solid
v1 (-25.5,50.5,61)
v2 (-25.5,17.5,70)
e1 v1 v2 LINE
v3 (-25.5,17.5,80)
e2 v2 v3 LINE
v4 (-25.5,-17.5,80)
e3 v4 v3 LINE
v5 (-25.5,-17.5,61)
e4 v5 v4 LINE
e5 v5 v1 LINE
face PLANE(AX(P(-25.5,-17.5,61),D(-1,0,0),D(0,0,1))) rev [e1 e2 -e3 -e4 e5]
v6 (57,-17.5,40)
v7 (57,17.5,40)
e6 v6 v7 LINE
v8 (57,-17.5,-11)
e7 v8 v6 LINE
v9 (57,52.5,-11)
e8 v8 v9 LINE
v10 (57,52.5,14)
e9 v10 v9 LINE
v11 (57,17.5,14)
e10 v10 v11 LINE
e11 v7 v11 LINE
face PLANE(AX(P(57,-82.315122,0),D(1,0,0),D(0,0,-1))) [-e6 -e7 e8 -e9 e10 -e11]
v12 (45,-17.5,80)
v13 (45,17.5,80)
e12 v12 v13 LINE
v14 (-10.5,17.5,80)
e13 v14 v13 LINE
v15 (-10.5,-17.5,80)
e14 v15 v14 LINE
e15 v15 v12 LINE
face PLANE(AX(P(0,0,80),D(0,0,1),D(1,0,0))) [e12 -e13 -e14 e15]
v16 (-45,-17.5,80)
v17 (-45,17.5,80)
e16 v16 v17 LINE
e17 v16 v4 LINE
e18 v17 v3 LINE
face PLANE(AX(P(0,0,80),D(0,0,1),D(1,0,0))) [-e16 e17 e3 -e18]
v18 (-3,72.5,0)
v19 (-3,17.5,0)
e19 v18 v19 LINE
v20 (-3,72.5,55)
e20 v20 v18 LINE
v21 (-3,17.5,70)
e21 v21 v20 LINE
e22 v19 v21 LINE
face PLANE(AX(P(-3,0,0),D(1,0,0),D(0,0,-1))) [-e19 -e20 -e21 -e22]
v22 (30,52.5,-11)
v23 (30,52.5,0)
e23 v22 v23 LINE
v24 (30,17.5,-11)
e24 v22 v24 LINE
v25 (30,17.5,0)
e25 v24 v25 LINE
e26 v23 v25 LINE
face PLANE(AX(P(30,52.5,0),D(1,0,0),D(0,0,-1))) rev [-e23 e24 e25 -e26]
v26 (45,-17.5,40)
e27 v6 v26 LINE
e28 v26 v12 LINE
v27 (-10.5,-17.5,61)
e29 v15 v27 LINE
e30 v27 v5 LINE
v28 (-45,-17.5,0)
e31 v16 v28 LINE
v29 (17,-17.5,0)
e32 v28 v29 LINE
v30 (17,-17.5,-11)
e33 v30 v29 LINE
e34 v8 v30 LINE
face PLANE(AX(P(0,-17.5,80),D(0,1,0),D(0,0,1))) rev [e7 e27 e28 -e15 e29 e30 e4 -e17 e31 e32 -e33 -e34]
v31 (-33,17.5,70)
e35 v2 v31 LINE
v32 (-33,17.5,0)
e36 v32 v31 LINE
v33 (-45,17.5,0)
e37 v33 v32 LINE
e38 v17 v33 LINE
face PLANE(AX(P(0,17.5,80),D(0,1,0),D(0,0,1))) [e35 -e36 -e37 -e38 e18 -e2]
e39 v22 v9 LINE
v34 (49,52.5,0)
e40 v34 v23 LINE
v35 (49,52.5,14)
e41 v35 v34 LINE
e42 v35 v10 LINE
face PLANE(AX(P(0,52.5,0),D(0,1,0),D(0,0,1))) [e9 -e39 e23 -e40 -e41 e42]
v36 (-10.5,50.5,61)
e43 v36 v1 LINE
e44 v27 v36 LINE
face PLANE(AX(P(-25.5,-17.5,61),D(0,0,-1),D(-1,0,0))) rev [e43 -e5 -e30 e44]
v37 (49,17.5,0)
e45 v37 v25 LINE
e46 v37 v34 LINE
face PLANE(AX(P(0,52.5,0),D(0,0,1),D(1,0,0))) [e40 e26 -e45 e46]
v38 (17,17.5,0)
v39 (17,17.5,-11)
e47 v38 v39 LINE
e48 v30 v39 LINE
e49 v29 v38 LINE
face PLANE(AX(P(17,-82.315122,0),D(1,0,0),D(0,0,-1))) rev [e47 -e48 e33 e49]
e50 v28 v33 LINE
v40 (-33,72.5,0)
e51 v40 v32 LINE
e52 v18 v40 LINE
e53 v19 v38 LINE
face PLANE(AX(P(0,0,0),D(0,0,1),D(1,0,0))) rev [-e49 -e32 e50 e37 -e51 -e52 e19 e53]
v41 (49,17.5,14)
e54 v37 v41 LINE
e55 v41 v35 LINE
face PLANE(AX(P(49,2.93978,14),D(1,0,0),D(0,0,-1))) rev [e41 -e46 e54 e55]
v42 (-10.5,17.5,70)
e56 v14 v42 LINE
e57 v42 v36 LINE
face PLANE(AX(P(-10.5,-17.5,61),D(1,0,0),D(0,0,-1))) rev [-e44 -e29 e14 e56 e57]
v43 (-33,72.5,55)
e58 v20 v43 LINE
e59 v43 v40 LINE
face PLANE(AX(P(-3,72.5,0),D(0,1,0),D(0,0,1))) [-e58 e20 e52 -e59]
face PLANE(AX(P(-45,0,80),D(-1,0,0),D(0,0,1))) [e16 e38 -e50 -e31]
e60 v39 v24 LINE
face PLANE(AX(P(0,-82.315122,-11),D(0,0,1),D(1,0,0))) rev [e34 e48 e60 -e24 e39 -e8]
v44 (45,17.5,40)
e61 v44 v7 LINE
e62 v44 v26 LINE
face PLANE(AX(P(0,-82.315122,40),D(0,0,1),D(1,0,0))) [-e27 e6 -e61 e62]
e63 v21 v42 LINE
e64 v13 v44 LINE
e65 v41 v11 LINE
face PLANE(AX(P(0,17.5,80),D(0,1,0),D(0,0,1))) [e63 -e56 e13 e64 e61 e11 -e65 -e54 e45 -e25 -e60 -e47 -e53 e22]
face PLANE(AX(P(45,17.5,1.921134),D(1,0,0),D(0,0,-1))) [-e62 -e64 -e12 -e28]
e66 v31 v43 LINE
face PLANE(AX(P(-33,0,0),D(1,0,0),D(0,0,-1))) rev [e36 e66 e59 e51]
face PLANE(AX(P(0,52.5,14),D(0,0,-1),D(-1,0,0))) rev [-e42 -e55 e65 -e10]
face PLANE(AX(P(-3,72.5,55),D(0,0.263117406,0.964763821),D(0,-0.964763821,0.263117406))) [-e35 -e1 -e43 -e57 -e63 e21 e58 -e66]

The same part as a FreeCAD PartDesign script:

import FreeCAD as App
import Part
import Sketcher

V = App.Vector
Q = App.Units.Quantity


def add_polygon(sketch, points):
    """Adds a closed chain of lines whose ends are joined by coincident constraints."""
    first, n = sketch.GeometryCount, len(points)
    for a, b in zip(points, points[1:] + points[:1]):
        sketch.addGeometry(Part.LineSegment(App.Vector(*a, 0), App.Vector(*b, 0)), False)
    for i in range(n):
        sketch.addConstraint(Sketcher.Constraint("Coincident", first + i, 2, first + (i + 1) % n, 1))

doc = App.newDocument("Part")
body = doc.addObject("PartDesign::Body", "Body")

# Sketch on XY plane
sketch1 = doc.addObject("Sketcher::SketchObject", "Sketch")
body.addObject(sketch1)
sketch1.AttachmentSupport = (doc.XY_Plane, [""])
sketch1.MapMode = "FlatFace"
add_polygon(sketch1, [(-45, -18), (30, -18), (45, 18), (-45, 18)])  # lines 0-3
sketch1.addConstraint(Sketcher.Constraint("Horizontal", 0))
sketch1.addConstraint(Sketcher.Constraint("Horizontal", 2))
sketch1.addConstraint(Sketcher.Constraint("Vertical", 3))
sketch1.addConstraint(Sketcher.Constraint("Symmetric", 1, 2, 3, 2, -1, 1))
sketch1.addConstraint(Sketcher.Constraint("DistanceX", 0, 1, 0, 2, Q("75 mm")))
sketch1.addConstraint(Sketcher.Constraint("DistanceX", 2, 2, 2, 1, Q("90 mm")))
sketch1.addConstraint(Sketcher.Constraint("DistanceY", 3, 2, 3, 1, Q("35 mm")))
pad1 = doc.addObject("PartDesign::Pad", "Pad")
body.addObject(pad1)
pad1.Profile = sketch1
pad1.Length = 80

# Sketch on YZ plane
sketch2 = doc.addObject("Sketcher::SketchObject", "Sketch001")
body.addObject(sketch2)
sketch2.AttachmentSupport = (doc.YZ_Plane, [""])
sketch2.MapMode = "FlatFace"
sketch2.AttachmentOffset = App.Placement(V(0, 0, -33), App.Rotation())
add_polygon(sketch2, [(72, 0), (18, 0), (18, 70), (72, 55)])  # lines 0-3
sketch2.addConstraint(Sketcher.Constraint("Horizontal", 0))
sketch2.addConstraint(Sketcher.Constraint("Vertical", 1))
sketch2.addConstraint(Sketcher.Constraint("Vertical", 3))
sketch2.addConstraint(Sketcher.Constraint("PointOnObject", 0, 2, -1))
sketch2.addConstraint(Sketcher.Constraint("Equal", 0, 3))
sketch2.addConstraint(Sketcher.Constraint("DistanceX", 0, 2, 0, 1, Q("55 mm")))
sketch2.addConstraint(Sketcher.Constraint("DistanceY", 1, 1, 1, 2, Q("70 mm")))
sketch2.addConstraint(Sketcher.Constraint("DistanceX", -1, 1, 0, 2, Q("17.5 mm")))
pad2 = doc.addObject("PartDesign::Pad", "Pad001")
body.addObject(pad2)
pad2.Profile = sketch2
pad2.Length = 30

# Sketch on XZ plane
sketch3 = doc.addObject("Sketcher::SketchObject", "Sketch002")
body.addObject(sketch3)
sketch3.AttachmentSupport = (doc.XZ_Plane, [""])
sketch3.MapMode = "FlatFace"
sketch3.AttachmentOffset = App.Placement(V(0, 0, -72.5), App.Rotation())
add_polygon(sketch3, [(-26, 61), (-26, 80), (-10, 80), (-10, 61)])  # lines 0-3
sketch3.addConstraint(Sketcher.Constraint("Vertical", 0))
sketch3.addConstraint(Sketcher.Constraint("Horizontal", 1))
sketch3.addConstraint(Sketcher.Constraint("Vertical", 2))
sketch3.addConstraint(Sketcher.Constraint("Horizontal", 3))
sketch3.addConstraint(Sketcher.Constraint("DistanceX", 1, 1, 1, 2, Q("15 mm")))
sketch3.addConstraint(Sketcher.Constraint("DistanceY", 0, 1, 0, 2, Q("19 mm")))
sketch3.addConstraint(Sketcher.Constraint("DistanceY", -1, 1, 0, 2, Q("80 mm")))
sketch3.addConstraint(Sketcher.Constraint("DistanceX", 0, 2, -1, 1, Q("25.5 mm")))
pocket1 = doc.addObject("PartDesign::Pocket", "Pocket")
body.addObject(pocket1)
pocket1.Profile = sketch3
pocket1.Type = "ThroughAll"
pocket1.Reversed = True

# Sketch on XZ plane
sketch4 = doc.addObject("Sketcher::SketchObject", "Sketch003")
body.addObject(sketch4)
sketch4.AttachmentSupport = (doc.XZ_Plane, [""])
sketch4.MapMode = "FlatFace"
sketch4.AttachmentOffset = App.Placement(V(0, 0, -17.5), App.Rotation())
add_polygon(sketch4, [(17, 40), (57, 40), (57, -11), (17, -11)])  # lines 0-3
sketch4.addConstraint(Sketcher.Constraint("Horizontal", 0))
sketch4.addConstraint(Sketcher.Constraint("Vertical", 1))
sketch4.addConstraint(Sketcher.Constraint("Horizontal", 2))
sketch4.addConstraint(Sketcher.Constraint("Vertical", 3))
sketch4.addConstraint(Sketcher.Constraint("DistanceX", 0, 1, 0, 2, Q("40 mm")))
sketch4.addConstraint(Sketcher.Constraint("DistanceY", 1, 2, 1, 1, Q("51 mm")))
sketch4.addConstraint(Sketcher.Constraint("DistanceX", -1, 1, 0, 2, Q("57 mm")))
sketch4.addConstraint(Sketcher.Constraint("DistanceY", -1, 1, 0, 2, Q("40 mm")))
pad3 = doc.addObject("PartDesign::Pad", "Pad002")
body.addObject(pad3)
pad3.Profile = sketch4
pad3.Length = 35

# Sketch on XZ plane
sketch5 = doc.addObject("Sketcher::SketchObject", "Sketch004")
body.addObject(sketch5)
sketch5.AttachmentSupport = (doc.XZ_Plane, [""])
sketch5.MapMode = "FlatFace"
sketch5.AttachmentOffset = App.Placement(V(0, 0, -17.5), App.Rotation())
add_polygon(sketch5, [(45, 0), (45, 14), (57, 14), (57, -11), (30, -11), (30, 0)])  # lines 0-5
sketch5.addConstraint(Sketcher.Constraint("Vertical", 0))
sketch5.addConstraint(Sketcher.Constraint("Horizontal", 1))
sketch5.addConstraint(Sketcher.Constraint("Vertical", 2))
sketch5.addConstraint(Sketcher.Constraint("Horizontal", 3))
sketch5.addConstraint(Sketcher.Constraint("Vertical", 4))
sketch5.addConstraint(Sketcher.Constraint("Horizontal", 5))
sketch5.addConstraint(Sketcher.Constraint("PointOnObject", 4, 2, -1))
sketch5.addConstraint(Sketcher.Constraint("DistanceX", 1, 1, 1, 2, Q("12 mm")))
sketch5.addConstraint(Sketcher.Constraint("DistanceX", 3, 2, 3, 1, Q("27 mm")))
sketch5.addConstraint(Sketcher.Constraint("DistanceY", 0, 1, 0, 2, Q("14 mm")))
sketch5.addConstraint(Sketcher.Constraint("DistanceY", 2, 2, 2, 1, Q("25 mm")))
sketch5.addConstraint(Sketcher.Constraint("DistanceX", -1, 1, 0, 2, Q("45 mm")))
pad4 = doc.addObject("PartDesign::Pad", "Pad003")
body.addObject(pad4)
pad4.Profile = sketch5
pad4.Length = 35
pad4.Reversed = True

# Sketch on XZ plane
sketch6 = doc.addObject("Sketcher::SketchObject", "Sketch005")
body.addObject(sketch6)
sketch6.AttachmentSupport = (doc.XZ_Plane, [""])
sketch6.MapMode = "FlatFace"
sketch6.AttachmentOffset = App.Placement(V(0, 0, -52.5), App.Rotation())
add_polygon(sketch6, [(45, 0), (45, 14), (49, 14), (49, 0)])  # lines 0-3
sketch6.addConstraint(Sketcher.Constraint("Vertical", 0))
sketch6.addConstraint(Sketcher.Constraint("Horizontal", 1))
sketch6.addConstraint(Sketcher.Constraint("Vertical", 2))
sketch6.addConstraint(Sketcher.Constraint("Horizontal", 3))
sketch6.addConstraint(Sketcher.Constraint("PointOnObject", 2, 2, -1))
sketch6.addConstraint(Sketcher.Constraint("DistanceX", 1, 1, 1, 2, Q("4 mm")))
sketch6.addConstraint(Sketcher.Constraint("DistanceY", 0, 1, 0, 2, Q("14 mm")))
sketch6.addConstraint(Sketcher.Constraint("DistanceX", -1, 1, 0, 2, Q("45 mm")))
pocket2 = doc.addObject("PartDesign::Pocket", "Pocket001")
body.addObject(pocket2)
pocket2.Profile = sketch6
pocket2.Length = 35
pocket2.Reversed = True

# Sketch on XY plane
sketch7 = doc.addObject("Sketcher::SketchObject", "Sketch006")
body.addObject(sketch7)
sketch7.AttachmentSupport = (doc.XY_Plane, [""])
sketch7.MapMode = "FlatFace"
sketch7.AttachmentOffset = App.Placement(V(0, 0, 80), App.Rotation())
add_polygon(sketch7, [(45, 18), (30, -18), (45, -18)])  # lines 0-2
sketch7.addConstraint(Sketcher.Constraint("Horizontal", 1))
sketch7.addConstraint(Sketcher.Constraint("Vertical", 2))
sketch7.addConstraint(Sketcher.Constraint("DistanceX", 1, 1, 1, 2, Q("15 mm")))
sketch7.addConstraint(Sketcher.Constraint("DistanceY", 2, 1, 2, 2, Q("35 mm")))
sketch7.addConstraint(Sketcher.Constraint("DistanceX", -1, 1, 0, 2, Q("30 mm")))
sketch7.addConstraint(Sketcher.Constraint("DistanceY", 0, 2, -1, 1, Q("17.5 mm")))
pad5 = doc.addObject("PartDesign::Pad", "Pad004")
body.addObject(pad5)
pad5.Profile = sketch7
pad5.Length = 40
pad5.Reversed = True

doc.recompute()
